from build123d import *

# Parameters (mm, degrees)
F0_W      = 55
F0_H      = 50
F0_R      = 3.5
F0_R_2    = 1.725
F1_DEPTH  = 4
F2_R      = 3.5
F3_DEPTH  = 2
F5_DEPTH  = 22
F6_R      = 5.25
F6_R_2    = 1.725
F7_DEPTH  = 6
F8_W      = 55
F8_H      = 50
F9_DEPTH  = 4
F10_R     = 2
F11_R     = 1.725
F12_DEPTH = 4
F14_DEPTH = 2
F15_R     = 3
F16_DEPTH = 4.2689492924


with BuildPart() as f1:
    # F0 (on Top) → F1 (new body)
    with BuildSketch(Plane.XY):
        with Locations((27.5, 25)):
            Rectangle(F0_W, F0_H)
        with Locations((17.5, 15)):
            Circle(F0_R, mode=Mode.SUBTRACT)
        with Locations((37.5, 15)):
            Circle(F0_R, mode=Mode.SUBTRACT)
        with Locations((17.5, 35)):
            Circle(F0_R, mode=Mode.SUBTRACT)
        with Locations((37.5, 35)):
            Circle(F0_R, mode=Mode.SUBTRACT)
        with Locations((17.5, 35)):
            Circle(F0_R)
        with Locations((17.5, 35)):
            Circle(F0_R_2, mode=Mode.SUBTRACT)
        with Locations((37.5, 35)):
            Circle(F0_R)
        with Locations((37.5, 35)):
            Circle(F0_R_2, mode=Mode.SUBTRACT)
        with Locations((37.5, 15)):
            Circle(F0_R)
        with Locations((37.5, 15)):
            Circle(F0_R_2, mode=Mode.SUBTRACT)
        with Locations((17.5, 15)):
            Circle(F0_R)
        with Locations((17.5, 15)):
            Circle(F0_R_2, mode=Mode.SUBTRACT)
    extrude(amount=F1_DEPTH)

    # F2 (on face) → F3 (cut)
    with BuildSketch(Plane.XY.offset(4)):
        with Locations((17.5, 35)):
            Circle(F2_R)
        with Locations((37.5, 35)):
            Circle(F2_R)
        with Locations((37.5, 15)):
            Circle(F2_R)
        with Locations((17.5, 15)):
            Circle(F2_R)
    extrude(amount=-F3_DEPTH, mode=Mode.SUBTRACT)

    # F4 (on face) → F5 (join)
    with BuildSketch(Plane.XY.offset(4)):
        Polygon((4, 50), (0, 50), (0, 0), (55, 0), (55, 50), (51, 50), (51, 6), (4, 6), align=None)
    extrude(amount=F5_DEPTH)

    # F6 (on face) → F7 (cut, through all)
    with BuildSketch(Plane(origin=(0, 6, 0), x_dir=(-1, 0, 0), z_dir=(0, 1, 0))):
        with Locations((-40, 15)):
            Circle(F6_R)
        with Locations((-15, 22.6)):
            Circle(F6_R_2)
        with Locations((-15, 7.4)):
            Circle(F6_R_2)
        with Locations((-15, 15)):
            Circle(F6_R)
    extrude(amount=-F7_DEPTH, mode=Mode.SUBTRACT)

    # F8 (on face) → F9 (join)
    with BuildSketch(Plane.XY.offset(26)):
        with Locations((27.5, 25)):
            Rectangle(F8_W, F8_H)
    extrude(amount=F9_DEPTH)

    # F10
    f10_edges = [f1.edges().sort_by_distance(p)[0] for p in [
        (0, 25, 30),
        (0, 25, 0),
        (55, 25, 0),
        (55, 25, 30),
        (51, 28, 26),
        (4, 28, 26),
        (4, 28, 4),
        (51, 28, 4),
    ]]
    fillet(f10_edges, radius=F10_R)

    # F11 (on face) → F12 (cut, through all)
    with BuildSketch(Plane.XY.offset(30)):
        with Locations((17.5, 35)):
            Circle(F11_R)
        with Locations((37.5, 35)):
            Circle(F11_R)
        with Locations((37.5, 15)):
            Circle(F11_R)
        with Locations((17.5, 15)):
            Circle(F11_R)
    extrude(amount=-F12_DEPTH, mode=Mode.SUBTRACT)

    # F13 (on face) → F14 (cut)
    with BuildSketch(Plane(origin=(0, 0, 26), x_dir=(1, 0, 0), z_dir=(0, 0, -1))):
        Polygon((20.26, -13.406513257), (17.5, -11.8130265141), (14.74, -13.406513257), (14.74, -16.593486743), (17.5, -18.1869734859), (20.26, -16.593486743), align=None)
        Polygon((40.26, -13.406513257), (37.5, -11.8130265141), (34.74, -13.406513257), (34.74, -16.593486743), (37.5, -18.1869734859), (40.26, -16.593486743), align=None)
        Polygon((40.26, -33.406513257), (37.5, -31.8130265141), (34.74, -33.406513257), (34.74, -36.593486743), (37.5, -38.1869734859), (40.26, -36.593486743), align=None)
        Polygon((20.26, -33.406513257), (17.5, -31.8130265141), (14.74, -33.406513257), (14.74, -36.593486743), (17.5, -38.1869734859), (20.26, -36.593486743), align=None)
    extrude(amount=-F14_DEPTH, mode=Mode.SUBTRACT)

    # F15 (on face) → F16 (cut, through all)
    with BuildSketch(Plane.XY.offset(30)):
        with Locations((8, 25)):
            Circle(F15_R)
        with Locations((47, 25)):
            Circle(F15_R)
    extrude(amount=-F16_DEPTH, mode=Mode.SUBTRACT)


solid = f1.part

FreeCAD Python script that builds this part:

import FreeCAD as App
import Part
import Sketcher
from FreeCAD import Vector
Q = App.Units.Quantity


def edges_at(feature, points):
    """Names of the edges that pass closest to the given points."""
    edges = feature.Shape.Edges
    near = lambda p: min(range(len(edges)), key=lambda i: edges[i].distToShape(Part.Vertex(*p))[0])
    return sorted({f"Edge{near(p) + 1}" for p in points})

doc = App.newDocument("Part")
params = doc.addObject("Spreadsheet::Sheet", "Params")
for row, (alias, value) in enumerate([
    ("sketch1_diameter", "3.45 mm"),
    ("sketch1_width", "55 mm"),
    ("sketch1_height", "50 mm"),
    ("pad1_length", "4 mm"),
    ("sketch2_diameter", "7 mm"),
    ("pocket1_length", "2 mm"),
    ("sketch3_width", "4 mm"),
    ("sketch3_width2", "55 mm"),
    ("sketch3_height", "50 mm"),
    ("sketch3_height2", "44 mm"),
    ("pad2_length", "22 mm"),
    ("sketch4_diameter", "10.5 mm"),
    ("sketch4_diameter2", "3.45 mm"),
    ("sketch5_width", "55 mm"),
    ("sketch5_height", "50 mm"),
    ("pad3_length", "4 mm"),
    ("fillet_radius", "2 mm"),
    ("sketch6_diameter", "3.45 mm"),
    ("pocket4_length", "2 mm"),
    ("sketch8_diameter", "6 mm"),
    ("pocket5_length", "4.268949 mm"),
], start=1):
    params.set(f"A{row}", alias)
    params.set(f"B{row}", "=" + value)
    params.setAlias(f"B{row}", alias)

body = doc.addObject("PartDesign::Body", "Body")

# Sketch on XY plane
sketch1 = doc.addObject("Sketcher::SketchObject", "Sketch")
body.addObject(sketch1)
sketch1.AttachmentSupport = (doc.XY_Plane, [""])
sketch1.MapMode = "FlatFace"
sketch1.addGeometry(Part.LineSegment(Vector(0, 50, 0), Vector(0, 0, 0)), False)
sketch1.addGeometry(Part.LineSegment(Vector(0, 0, 0), Vector(55, 0, 0)), False)
sketch1.addGeometry(Part.LineSegment(Vector(55, 0, 0), Vector(55, 50, 0)), False)
sketch1.addGeometry(Part.LineSegment(Vector(55, 50, 0), Vector(0, 50, 0)), False)
sketch1.addGeometry(Part.Circle(Vector(17.5, 15, 0), Vector(0, 0, 1), 1.7), False)
sketch1.addGeometry(Part.Circle(Vector(37.5, 15, 0), Vector(0, 0, 1), 1.7), False)
sketch1.addGeometry(Part.Circle(Vector(17.5, 35, 0), Vector(0, 0, 1), 1.7), False)
sketch1.addGeometry(Part.Circle(Vector(37.5, 35, 0), Vector(0, 0, 1), 1.7), False)
sketch1.addConstraint(Sketcher.Constraint("Coincident", 0, 2, 1, 1))
sketch1.addConstraint(Sketcher.Constraint("Coincident", 1, 2, 2, 1))
sketch1.addConstraint(Sketcher.Constraint("Coincident", 2, 2, 3, 1))
sketch1.addConstraint(Sketcher.Constraint("Coincident", 3, 2, 0, 1))
sketch1.addConstraint(Sketcher.Constraint("Vertical", 0))
sketch1.addConstraint(Sketcher.Constraint("Horizontal", 1))
sketch1.addConstraint(Sketcher.Constraint("Vertical", 2))
sketch1.addConstraint(Sketcher.Constraint("Horizontal", 3))
sketch1.addConstraint(Sketcher.Constraint("Coincident", 0, 2, -1, 1))
sketch1.addConstraint(Sketcher.Constraint("Equal", 4, 5))
sketch1.addConstraint(Sketcher.Constraint("Equal", 5, 6))
sketch1.addConstraint(Sketcher.Constraint("Equal", 6, 7))
sketch1.addConstraint(Sketcher.Constraint("Horizontal", 4, 3, 5, 3))
sketch1.addConstraint(Sketcher.Constraint("Horizontal", 6, 3, 7, 3))
sketch1.addConstraint(Sketcher.Constraint("Vertical", 4, 3, 6, 3))
sketch1.addConstraint(Sketcher.Constraint("Vertical", 5, 3, 7, 3))
sketch1.addConstraint(Sketcher.Constraint("Diameter", 4, 3.45))
sketch1.addConstraint(Sketcher.Constraint("DistanceX", 1, 1, 1, 2, 55.0))
sketch1.addConstraint(Sketcher.Constraint("DistanceY", 0, 2, 0, 1, 50.0))
sketch1.addConstraint(Sketcher.Constraint("DistanceY", -1, 1, 4, 3, 15.0))
sketch1.addConstraint(Sketcher.Constraint("DistanceY", -1, 1, 6, 3, 35.0))
sketch1.addConstraint(Sketcher.Constraint("DistanceX", 4, 3, 5, 3, 20.0))
sketch1.addConstraint(Sketcher.Constraint("DistanceX", -1, 1, 4, 3, 17.5))
sketch1.setExpression("Constraints[16]", "Params.sketch1_diameter")
sketch1.setExpression("Constraints[17]", "Params.sketch1_width")
sketch1.setExpression("Constraints[18]", "Params.sketch1_height")
pad1 = doc.addObject("PartDesign::Pad", "Pad")
body.addObject(pad1)
pad1.Profile = sketch1
pad1.setExpression("Length", "Params.pad1_length")

# Sketch on XY plane
sketch2 = doc.addObject("Sketcher::SketchObject", "Sketch001")
body.addObject(sketch2)
sketch2.AttachmentSupport = (doc.XY_Plane, [""])
sketch2.MapMode = "FlatFace"
sketch2.AttachmentOffset = App.Placement(Vector(0, 0, 4), App.Rotation())
sketch2.addGeometry(Part.Circle(Vector(17.5, 35, 0), Vector(0, 0, 1), 3.5), False)
sketch2.addGeometry(Part.Circle(Vector(37.5, 35, 0), Vector(0, 0, 1), 3.5), False)
sketch2.addGeometry(Part.Circle(Vector(37.5, 15, 0), Vector(0, 0, 1), 3.5), False)
sketch2.addGeometry(Part.Circle(Vector(17.5, 15, 0), Vector(0, 0, 1), 3.5), False)
sketch2.addConstraint(Sketcher.Constraint("Equal", 0, 1))
sketch2.addConstraint(Sketcher.Constraint("Equal", 1, 2))
sketch2.addConstraint(Sketcher.Constraint("Equal", 2, 3))
sketch2.addConstraint(Sketcher.Constraint("Horizontal", 0, 3, 1, 3))
sketch2.addConstraint(Sketcher.Constraint("Horizontal", 2, 3, 3, 3))
sketch2.addConstraint(Sketcher.Constraint("Vertical", 1, 3, 2, 3))
sketch2.addConstraint(Sketcher.Constraint("Vertical", 0, 3, 3, 3))
sketch2.addConstraint(Sketcher.Constraint("Diameter", 0, 7.0))
sketch2.addConstraint(Sketcher.Constraint("DistanceY", -1, 1, 0, 3, 35.0))
sketch2.addConstraint(Sketcher.Constraint("DistanceY", -1, 1, 2, 3, 15.0))
sketch2.addConstraint(Sketcher.Constraint("DistanceX", 0, 3, 1, 3, 20.0))
sketch2.addConstraint(Sketcher.Constraint("DistanceX", -1, 1, 0, 3, 17.5))
sketch2.setExpression("Constraints[7]", "Params.sketch2_diameter")
pocket1 = doc.addObject("PartDesign::Pocket", "Pocket")
body.addObject(pocket1)
pocket1.Profile = sketch2
pocket1.setExpression("Length", "Params.pocket1_length")

# Sketch on XY plane
sketch3 = doc.addObject("Sketcher::SketchObject", "Sketch002")
body.addObject(sketch3)
sketch3.AttachmentSupport = (doc.XY_Plane, [""])
sketch3.MapMode = "FlatFace"
sketch3.AttachmentOffset = App.Placement(Vector(0, 0, 4), App.Rotation())
sketch3.addGeometry(Part.LineSegment(Vector(4, 50, 0), Vector(0, 50, 0)), False)
sketch3.addGeometry(Part.LineSegment(Vector(0, 50, 0), Vector(0, 0, 0)), False)
sketch3.addGeometry(Part.LineSegment(Vector(0, 0, 0), Vector(55, 0, 0)), False)
sketch3.addGeometry(Part.LineSegment(Vector(55, 0, 0), Vector(55, 50, 0)), False)
sketch3.addGeometry(Part.LineSegment(Vector(55, 50, 0), Vector(51, 50, 0)), False)
sketch3.addGeometry(Part.LineSegment(Vector(51, 50, 0), Vector(51, 6, 0)), False)
sketch3.addGeometry(Part.LineSegment(Vector(51, 6, 0), Vector(4, 6, 0)), False)
sketch3.addGeometry(Part.LineSegment(Vector(4, 6, 0), Vector(4, 50, 0)), False)
sketch3.addConstraint(Sketcher.Constraint("Coincident", 0, 2, 1, 1))
sketch3.addConstraint(Sketcher.Constraint("Coincident", 1, 2, 2, 1))
sketch3.addConstraint(Sketcher.Constraint("Coincident", 2, 2, 3, 1))
sketch3.addConstraint(Sketcher.Constraint("Coincident", 3, 2, 4, 1))
sketch3.addConstraint(Sketcher.Constraint("Coincident", 4, 2, 5, 1))
sketch3.addConstraint(Sketcher.Constraint("Coincident", 5, 2, 6, 1))
sketch3.addConstraint(Sketcher.Constraint("Coincident", 6, 2, 7, 1))
sketch3.addConstraint(Sketcher.Constraint("Coincident", 7, 2, 0, 1))
sketch3.addConstraint(Sketcher.Constraint("Horizontal", 0))
sketch3.addConstraint(Sketcher.Constraint("Vertical", 1))
sketch3.addConstraint(Sketcher.Constraint("Horizontal", 2))
sketch3.addConstraint(Sketcher.Constraint("Vertical", 3))
sketch3.addConstraint(Sketcher.Constraint("Horizontal", 4))
sketch3.addConstraint(Sketcher.Constraint("Vertical", 5))
sketch3.addConstraint(Sketcher.Constraint("Horizontal", 6))
sketch3.addConstraint(Sketcher.Constraint("Vertical", 7))
sketch3.addConstraint(Sketcher.Constraint("Coincident", 1, 2, -1, 1))
sketch3.addConstraint(Sketcher.Constraint("Horizontal", 0, 2, 3, 2))
sketch3.addConstraint(Sketcher.Constraint("Equal", 0, 4))
sketch3.addConstraint(Sketcher.Constraint("DistanceX", 0, 2, 0, 1, 4.0))
sketch3.addConstraint(Sketcher.Constraint("DistanceX", 2, 1, 2, 2, 55.0))
sketch3.addConstraint(Sketcher.Constraint("DistanceY", 1, 2, 1, 1, 50.0))
sketch3.addConstraint(Sketcher.Constraint("DistanceY", 5, 2, 5, 1, 44.0))
sketch3.setExpression("Constraints[19]", "Params.sketch3_width")
sketch3.setExpression("Constraints[20]", "Params.sketch3_width2")
sketch3.setExpression("Constraints[21]", "Params.sketch3_height")
sketch3.setExpression("Constraints[22]", "Params.sketch3_height2")
pad2 = doc.addObject("PartDesign::Pad", "Pad001")
body.addObject(pad2)
pad2.Profile = sketch3
pad2.setExpression("Length", "Params.pad2_length")

# Sketch on XZ plane
sketch4 = doc.addObject("Sketcher::SketchObject", "Sketch003")
body.addObject(sketch4)
sketch4.AttachmentSupport = (doc.XZ_Plane, [""])
sketch4.MapMode = "FlatFace"
sketch4.AttachmentOffset = App.Placement(Vector(0, 0, -6), App.Rotation())
sketch4.addGeometry(Part.Circle(Vector(40, 15, 0), Vector(0, 0, 1), 5.2), False)
sketch4.addGeometry(Part.Circle(Vector(15, 22.6, 0), Vector(0, 0, 1), 1.7), False)
sketch4.addGeometry(Part.Circle(Vector(15, 7.4, 0), Vector(0, 0, 1), 1.7), False)
sketch4.addGeometry(Part.Circle(Vector(15, 15, 0), Vector(0, 0, 1), 5.2), False)
sketch4.addConstraint(Sketcher.Constraint("Equal", 1, 2))
sketch4.addConstraint(Sketcher.Constraint("Equal", 0, 3))
sketch4.addConstraint(Sketcher.Constraint("Horizontal", 0, 3, 3, 3))
sketch4.addConstraint(Sketcher.Constraint("Vertical", 1, 3, 2, 3))
sketch4.addConstraint(Sketcher.Constraint("Vertical", 2, 3, 3, 3))
sketch4.addConstraint(Sketcher.Constraint("Diameter", 0, 10.5))
sketch4.addConstraint(Sketcher.Constraint("Diameter", 1, 3.45))
sketch4.addConstraint(Sketcher.Constraint("DistanceX", -1, 1, 0, 3, 40.0))
sketch4.addConstraint(Sketcher.Constraint("DistanceY", -1, 1, 0, 3, 15.0))
sketch4.addConstraint(Sketcher.Constraint("DistanceX", -1, 1, 1, 3, 15.0))
sketch4.addConstraint(Sketcher.Constraint("DistanceY", -1, 1, 1, 3, 22.6))
sketch4.addConstraint(Sketcher.Constraint("DistanceY", -1, 1, 2, 3, 7.4))
sketch4.setExpression("Constraints[5]", "Params.sketch4_diameter")
sketch4.setExpression("Constraints[6]", "Params.sketch4_diameter2")
pocket2 = doc.addObject("PartDesign::Pocket", "Pocket001")
body.addObject(pocket2)
pocket2.Profile = sketch4
pocket2.Type = "ThroughAll"
pocket2.Reversed = True

# Sketch on XY plane
sketch5 = doc.addObject("Sketcher::SketchObject", "Sketch004")
body.addObject(sketch5)
sketch5.AttachmentSupport = (doc.XY_Plane, [""])
sketch5.MapMode = "FlatFace"
sketch5.AttachmentOffset = App.Placement(Vector(0, 0, 26), App.Rotation())
sketch5.addGeometry(Part.LineSegment(Vector(0, 50, 0), Vector(0, 0, 0)), False)
sketch5.addGeometry(Part.LineSegment(Vector(0, 0, 0), Vector(55, 0, 0)), False)
sketch5.addGeometry(Part.LineSegment(Vector(55, 0, 0), Vector(55, 50, 0)), False)
sketch5.addGeometry(Part.LineSegment(Vector(55, 50, 0), Vector(0, 50, 0)), False)
sketch5.addConstraint(Sketcher.Constraint("Coincident", 0, 2, 1, 1))
sketch5.addConstraint(Sketcher.Constraint("Coincident", 1, 2, 2, 1))
sketch5.addConstraint(Sketcher.Constraint("Coincident", 2, 2, 3, 1))
sketch5.addConstraint(Sketcher.Constraint("Coincident", 3, 2, 0, 1))
sketch5.addConstraint(Sketcher.Constraint("Vertical", 0))
sketch5.addConstraint(Sketcher.Constraint("Horizontal", 1))
sketch5.addConstraint(Sketcher.Constraint("Vertical", 2))
sketch5.addConstraint(Sketcher.Constraint("Horizontal", 3))
sketch5.addConstraint(Sketcher.Constraint("Coincident", 0, 2, -1, 1))
sketch5.addConstraint(Sketcher.Constraint("DistanceX", 1, 1, 1, 2, 55.0))
sketch5.addConstraint(Sketcher.Constraint("DistanceY", 0, 2, 0, 1, 50.0))
sketch5.setExpression("Constraints[9]", "Params.sketch5_width")
sketch5.setExpression("Constraints[10]", "Params.sketch5_height")
pad3 = doc.addObject("PartDesign::Pad", "Pad002")
body.addObject(pad3)
pad3.Profile = sketch5
pad3.setExpression("Length", "Params.pad3_length")
doc.recompute()

fillet = doc.addObject("PartDesign::Fillet", "Fillet")
body.addObject(fillet)
fillet.Base = (pad3, edges_at(pad3, [
    (0, 25, 30),
    (0, 25, 0),
    (55, 25, 0),
    (55, 25, 30),
    (51, 28, 26),
    (4, 28, 26),
    (4, 28, 4),
    (51, 28, 4),
]))
fillet.setExpression("Radius", "Params.fillet_radius")

# Sketch on XY plane
sketch6 = doc.addObject("Sketcher::SketchObject", "Sketch005")
body.addObject(sketch6)
sketch6.AttachmentSupport = (doc.XY_Plane, [""])
sketch6.MapMode = "FlatFace"
sketch6.AttachmentOffset = App.Placement(Vector(0, 0, 30), App.Rotation())
sketch6.addGeometry(Part.Circle(Vector(17.5, 35, 0), Vector(0, 0, 1), 1.7), False)
sketch6.addGeometry(Part.Circle(Vector(37.5, 35, 0), Vector(0, 0, 1), 1.7), False)
sketch6.addGeometry(Part.Circle(Vector(37.5, 15, 0), Vector(0, 0, 1), 1.7), False)
sketch6.addGeometry(Part.Circle(Vector(17.5, 15, 0), Vector(0, 0, 1), 1.7), False)
sketch6.addConstraint(Sketcher.Constraint("Equal", 0, 1))
sketch6.addConstraint(Sketcher.Constraint("Equal", 1, 2))
sketch6.addConstraint(Sketcher.Constraint("Equal", 2, 3))
sketch6.addConstraint(Sketcher.Constraint("Horizontal", 0, 3, 1, 3))
sketch6.addConstraint(Sketcher.Constraint("Horizontal", 2, 3, 3, 3))
sketch6.addConstraint(Sketcher.Constraint("Vertical", 1, 3, 2, 3))
sketch6.addConstraint(Sketcher.Constraint("Vertical", 0, 3, 3, 3))
sketch6.addConstraint(Sketcher.Constraint("Diameter", 0, 3.45))
sketch6.addConstraint(Sketcher.Constraint("DistanceY", -1, 1, 0, 3, 35.0))
sketch6.addConstraint(Sketcher.Constraint("DistanceY", -1, 1, 2, 3, 15.0))
sketch6.addConstraint(Sketcher.Constraint("DistanceX", 0, 3, 1, 3, 20.0))
sketch6.addConstraint(Sketcher.Constraint("DistanceX", -1, 1, 0, 3, 17.5))
sketch6.setExpression("Constraints[7]", "Params.sketch6_diameter")
pocket3 = doc.addObject("PartDesign::Pocket", "Pocket002")
body.addObject(pocket3)
pocket3.Profile = sketch6
pocket3.Type = "ThroughAll"

# Sketch on XY plane
sketch7 = doc.addObject("Sketcher::SketchObject", "Sketch006")
body.addObject(sketch7)
sketch7.AttachmentSupport = (doc.XY_Plane, [""])
sketch7.MapMode = "FlatFace"
sketch7.AttachmentOffset = App.Placement(Vector(0, 0, 26), App.Rotation())
sketch7.addGeometry(Part.LineSegment(Vector(20.3, 13.4, 0), Vector(17.5, 11.8, 0)), False)
sketch7.addGeometry(Part.LineSegment(Vector(17.5, 11.8, 0), Vector(14.7, 13.4, 0)), False)
sketch7.addGeometry(Part.LineSegment(Vector(14.7, 13.4, 0), Vector(14.7, 16.6, 0)), False)
sketch7.addGeometry(Part.LineSegment(Vector(14.7, 16.6, 0), Vector(17.5, 18.2, 0)), False)
sketch7.addGeometry(Part.LineSegment(Vector(17.5, 18.2, 0), Vector(20.3, 16.6, 0)), False)
sketch7.addGeometry(Part.LineSegment(Vector(20.3, 16.6, 0), Vector(20.3, 13.4, 0)), False)
sketch7.addGeometry(Part.LineSegment(Vector(40.3, 13.4, 0), Vector(37.5, 11.8, 0)), False)
sketch7.addGeometry(Part.LineSegment(Vector(37.5, 11.8, 0), Vector(34.7, 13.4, 0)), False)
sketch7.addGeometry(Part.LineSegment(Vector(34.7, 13.4, 0), Vector(34.7, 16.6, 0)), False)
sketch7.addGeometry(Part.LineSegment(Vector(34.7, 16.6, 0), Vector(37.5, 18.2, 0)), False)
sketch7.addGeometry(Part.LineSegment(Vector(37.5, 18.2, 0), Vector(40.3, 16.6, 0)), False)
sketch7.addGeometry(Part.LineSegment(Vector(40.3, 16.6, 0), Vector(40.3, 13.4, 0)), False)
sketch7.addGeometry(Part.LineSegment(Vector(40.3, 33.4, 0), Vector(37.5, 31.8, 0)), False)
sketch7.addGeometry(Part.LineSegment(Vector(37.5, 31.8, 0), Vector(34.7, 33.4, 0)), False)
sketch7.addGeometry(Part.LineSegment(Vector(34.7, 33.4, 0), Vector(34.7, 36.6, 0)), False)
sketch7.addGeometry(Part.LineSegment(Vector(34.7, 36.6, 0), Vector(37.5, 38.2, 0)), False)
sketch7.addGeometry(Part.LineSegment(Vector(37.5, 38.2, 0), Vector(40.3, 36.6, 0)), False)
sketch7.addGeometry(Part.LineSegment(Vector(40.3, 36.6, 0), Vector(40.3, 33.4, 0)), False)
sketch7.addGeometry(Part.LineSegment(Vector(20.3, 33.4, 0), Vector(17.5, 31.8, 0)), False)
sketch7.addGeometry(Part.LineSegment(Vector(17.5, 31.8, 0), Vector(14.7, 33.4, 0)), False)
sketch7.addGeometry(Part.LineSegment(Vector(14.7, 33.4, 0), Vector(14.7, 36.6, 0)), False)
sketch7.addGeometry(Part.LineSegment(Vector(14.7, 36.6, 0), Vector(17.5, 38.2, 0)), False)
sketch7.addGeometry(Part.LineSegment(Vector(17.5, 38.2, 0), Vector(20.3, 36.6, 0)), False)
sketch7.addGeometry(Part.LineSegment(Vector(20.3, 36.6, 0), Vector(20.3, 33.4, 0)), False)
sketch7.addConstraint(Sketcher.Constraint("Coincident", 0, 2, 1, 1))
sketch7.addConstraint(Sketcher.Constraint("Coincident", 1, 2, 2, 1))
sketch7.addConstraint(Sketcher.Constraint("Coincident", 2, 2, 3, 1))
sketch7.addConstraint(Sketcher.Constraint("Coincident", 3, 2, 4, 1))
sketch7.addConstraint(Sketcher.Constraint("Coincident", 4, 2, 5, 1))
sketch7.addConstraint(Sketcher.Constraint("Coincident", 5, 2, 0, 1))
sketch7.addConstraint(Sketcher.Constraint("Coincident", 6, 2, 7, 1))
sketch7.addConstraint(Sketcher.Constraint("Coincident", 7, 2, 8, 1))
sketch7.addConstraint(Sketcher.Constraint("Coincident", 8, 2, 9, 1))
sketch7.addConstraint(Sketcher.Constraint("Coincident", 9, 2, 10, 1))
sketch7.addConstraint(Sketcher.Constraint("Coincident", 10, 2, 11, 1))
sketch7.addConstraint(Sketcher.Constraint("Coincident", 11, 2, 6, 1))
sketch7.addConstraint(Sketcher.Constraint("Coincident", 12, 2, 13, 1))
sketch7.addConstraint(Sketcher.Constraint("Coincident", 13, 2, 14, 1))
sketch7.addConstraint(Sketcher.Constraint("Coincident", 14, 2, 15, 1))
sketch7.addConstraint(Sketcher.Constraint("Coincident", 15, 2, 16, 1))
sketch7.addConstraint(Sketcher.Constraint("Coincident", 16, 2, 17, 1))
sketch7.addConstraint(Sketcher.Constraint("Coincident", 17, 2, 12, 1))
sketch7.addConstraint(Sketcher.Constraint("Coincident", 18, 2, 19, 1))
sketch7.addConstraint(Sketcher.Constraint("Coincident", 19, 2, 20, 1))
sketch7.addConstraint(Sketcher.Constraint("Coincident", 20, 2, 21, 1))
sketch7.addConstraint(Sketcher.Constraint("Coincident", 21, 2, 22, 1))
sketch7.addConstraint(Sketcher.Constraint("Coincident", 22, 2, 23, 1))
sketch7.addConstraint(Sketcher.Constraint("Coincident", 23, 2, 18, 1))
sketch7.addConstraint(Sketcher.Constraint("Vertical", 2))
sketch7.addConstraint(Sketcher.Constraint("Vertical", 5))
sketch7.addConstraint(Sketcher.Constraint("Vertical", 8))
sketch7.addConstraint(Sketcher.Constraint("Vertical", 11))
sketch7.addConstraint(Sketcher.Constraint("Vertical", 14))
sketch7.addConstraint(Sketcher.Constraint("Vertical", 17))
sketch7.addConstraint(Sketcher.Constraint("Vertical", 20))
sketch7.addConstraint(Sketcher.Constraint("Vertical", 23))
sketch7.addConstraint(Sketcher.Constraint("Parallel", 0, 3))
sketch7.addConstraint(Sketcher.Constraint("Parallel", 1, 4))
sketch7.addConstraint(Sketcher.Constraint("Parallel", 3, 6))
sketch7.addConstraint(Sketcher.Constraint("Parallel", 4, 7))
sketch7.addConstraint(Sketcher.Constraint("Parallel", 6, 9))
sketch7.addConstraint(Sketcher.Constraint("Parallel", 7, 10))
sketch7.addConstraint(Sketcher.Constraint("Parallel", 9, 12))
sketch7.addConstraint(Sketcher.Constraint("Parallel", 10, 13))
sketch7.addConstraint(Sketcher.Constraint("Parallel", 12, 15))
sketch7.addConstraint(Sketcher.Constraint("Parallel", 13, 16))
sketch7.addConstraint(Sketcher.Constraint("Parallel", 15, 18))
sketch7.addConstraint(Sketcher.Constraint("Parallel", 16, 19))
sketch7.addConstraint(Sketcher.Constraint("Parallel", 18, 21))
sketch7.addConstraint(Sketcher.Constraint("Parallel", 19, 22))
sketch7.addConstraint(Sketcher.Constraint("Horizontal", 2, 2, 4, 2))
sketch7.addConstraint(Sketcher.Constraint("Horizontal", 1, 2, 5, 2))
sketch7.addConstraint(Sketcher.Constraint("Horizontal", 0, 2, 6, 2))
sketch7.addConstraint(Sketcher.Constraint("Horizontal", 5, 2, 7, 2))
sketch7.addConstraint(Sketcher.Constraint("Horizontal", 4, 2, 8, 2))
sketch7.addConstraint(Sketcher.Constraint("Horizontal", 3, 2, 9, 2))
sketch7.addConstraint(Sketcher.Constraint("Horizontal", 8, 2, 10, 2))
sketch7.addConstraint(Sketcher.Constraint("Horizontal", 14, 2, 16, 2))
sketch7.addConstraint(Sketcher.Constraint("Horizontal", 13, 2, 17, 2))
sketch7.addConstraint(Sketcher.Constraint("Horizontal", 12, 2, 18, 2))
sketch7.addConstraint(Sketcher.Constraint("Horizontal", 17, 2, 19, 2))
sketch7.addConstraint(Sketcher.Constraint("Horizontal", 16, 2, 20, 2))
sketch7.addConstraint(Sketcher.Constraint("Horizontal", 15, 2, 21, 2))
sketch7.addConstraint(Sketcher.Constraint("Horizontal", 20, 2, 22, 2))
sketch7.addConstraint(Sketcher.Constraint("Vertical", 0, 2, 3, 2))
sketch7.addConstraint(Sketcher.Constraint("Vertical", 9, 2, 12, 2))
sketch7.addConstraint(Sketcher.Constraint("Vertical", 8, 2, 13, 2))
sketch7.addConstraint(Sketcher.Constraint("Vertical", 3, 2, 18, 2))
sketch7.addConstraint(Sketcher.Constraint("Equal", 11, 14))
sketch7.addConstraint(Sketcher.Constraint("Angle", 0, Q("-150 deg")))
sketch7.addConstraint(Sketcher.Constraint("DistanceX", 0, 2, 6, 2, 20.0))
sketch7.addConstraint(Sketcher.Constraint("DistanceY", 7, 2, 13, 2, 20.0))
sketch7.addConstraint(Sketcher.Constraint("DistanceX", -1, 1, 0, 2, 17.5))
sketch7.addConstraint(Sketcher.Constraint("DistanceX", -1, 1, 1, 2, 14.74))
sketch7.addConstraint(Sketcher.Constraint("DistanceY", 2, 1, 2, 2, 3.186973))
sketch7.addConstraint(Sketcher.Constraint("DistanceY", -1, 1, 0, 2, 11.813027))
pocket4 = doc.addObject("PartDesign::Pocket", "Pocket003")
body.addObject(pocket4)
pocket4.Profile = sketch7
pocket4.setExpression("Length", "Params.pocket4_length")
pocket4.Reversed = True

# Sketch on XY plane
sketch8 = doc.addObject("Sketcher::SketchObject", "Sketch007")
body.addObject(sketch8)
sketch8.AttachmentSupport = (doc.XY_Plane, [""])
sketch8.MapMode = "FlatFace"
sketch8.AttachmentOffset = App.Placement(Vector(0, 0, 30), App.Rotation())
sketch8.addGeometry(Part.Circle(Vector(8, 25, 0), Vector(0, 0, 1), 3), False)
sketch8.addGeometry(Part.Circle(Vector(47, 25, 0), Vector(0, 0, 1), 3), False)
sketch8.addConstraint(Sketcher.Constraint("Equal", 0, 1))
sketch8.addConstraint(Sketcher.Constraint("Horizontal", 0, 3, 1, 3))
sketch8.addConstraint(Sketcher.Constraint("Diameter", 0, 6.0))
sketch8.addConstraint(Sketcher.Constraint("DistanceX", -1, 1, 0, 3, 8.0))
sketch8.addConstraint(Sketcher.Constraint("DistanceY", -1, 1, 0, 3, 25.0))
sketch8.addConstraint(Sketcher.Constraint("DistanceX", -1, 1, 1, 3, 47.0))
sketch8.setExpression("Constraints[2]", "Params.sketch8_diameter")
pocket5 = doc.addObject("PartDesign::Pocket", "Pocket004")
body.addObject(pocket5)
pocket5.Profile = sketch8
pocket5.setExpression("Length", "Params.pocket5_length")

doc.recompute()
